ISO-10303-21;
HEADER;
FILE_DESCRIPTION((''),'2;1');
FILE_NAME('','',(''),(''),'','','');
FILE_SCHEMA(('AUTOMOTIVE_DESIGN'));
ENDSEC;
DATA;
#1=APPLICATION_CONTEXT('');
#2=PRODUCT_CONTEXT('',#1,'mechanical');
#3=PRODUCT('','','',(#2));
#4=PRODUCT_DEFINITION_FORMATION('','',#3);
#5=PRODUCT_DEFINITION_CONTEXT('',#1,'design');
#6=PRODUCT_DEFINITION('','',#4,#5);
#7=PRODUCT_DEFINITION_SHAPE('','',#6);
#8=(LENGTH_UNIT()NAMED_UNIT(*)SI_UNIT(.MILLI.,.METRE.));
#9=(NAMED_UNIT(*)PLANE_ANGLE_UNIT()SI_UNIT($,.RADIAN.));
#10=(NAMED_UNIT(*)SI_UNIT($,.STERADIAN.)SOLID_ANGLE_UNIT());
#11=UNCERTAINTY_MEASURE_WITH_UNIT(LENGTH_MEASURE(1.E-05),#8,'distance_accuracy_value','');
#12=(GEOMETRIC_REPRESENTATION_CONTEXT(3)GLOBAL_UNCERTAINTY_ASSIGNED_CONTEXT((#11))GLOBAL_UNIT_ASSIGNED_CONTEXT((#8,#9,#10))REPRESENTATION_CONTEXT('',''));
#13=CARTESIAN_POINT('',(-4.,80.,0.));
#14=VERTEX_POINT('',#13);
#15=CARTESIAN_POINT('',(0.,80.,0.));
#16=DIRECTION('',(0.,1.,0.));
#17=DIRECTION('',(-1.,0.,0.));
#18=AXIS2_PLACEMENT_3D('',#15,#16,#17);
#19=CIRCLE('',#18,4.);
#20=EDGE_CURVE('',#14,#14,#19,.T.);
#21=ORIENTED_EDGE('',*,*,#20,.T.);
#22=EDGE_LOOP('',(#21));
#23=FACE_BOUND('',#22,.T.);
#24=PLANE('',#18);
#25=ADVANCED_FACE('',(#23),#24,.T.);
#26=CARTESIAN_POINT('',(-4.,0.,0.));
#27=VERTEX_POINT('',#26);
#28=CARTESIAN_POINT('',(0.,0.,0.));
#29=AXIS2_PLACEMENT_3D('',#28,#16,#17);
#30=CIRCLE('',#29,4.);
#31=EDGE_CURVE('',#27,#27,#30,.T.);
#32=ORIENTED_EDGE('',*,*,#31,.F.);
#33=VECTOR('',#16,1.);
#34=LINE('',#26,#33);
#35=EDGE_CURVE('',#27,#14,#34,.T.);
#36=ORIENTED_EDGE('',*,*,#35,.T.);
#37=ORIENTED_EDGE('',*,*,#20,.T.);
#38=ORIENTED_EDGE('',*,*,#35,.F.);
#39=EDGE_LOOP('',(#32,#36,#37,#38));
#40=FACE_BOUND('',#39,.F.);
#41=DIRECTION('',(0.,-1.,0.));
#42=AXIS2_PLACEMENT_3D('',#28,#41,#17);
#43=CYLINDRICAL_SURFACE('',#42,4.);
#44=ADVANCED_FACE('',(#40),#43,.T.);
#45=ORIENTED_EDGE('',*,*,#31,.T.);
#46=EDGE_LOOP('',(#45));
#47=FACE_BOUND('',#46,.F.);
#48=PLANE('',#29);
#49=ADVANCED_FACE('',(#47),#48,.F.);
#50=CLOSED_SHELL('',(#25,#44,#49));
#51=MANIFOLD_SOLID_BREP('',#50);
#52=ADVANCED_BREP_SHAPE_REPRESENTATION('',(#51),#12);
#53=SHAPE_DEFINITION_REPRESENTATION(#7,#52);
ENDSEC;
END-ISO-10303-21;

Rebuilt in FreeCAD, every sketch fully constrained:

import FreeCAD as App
import Part
import Sketcher

doc = App.newDocument("Part")
body = doc.addObject("PartDesign::Body", "Body")

# Sketch on XZ plane
sketch1 = doc.addObject("Sketcher::SketchObject", "Sketch")
body.addObject(sketch1)
sketch1.AttachmentSupport = (doc.XZ_Plane, [""])
sketch1.MapMode = "FlatFace"
sketch1.addGeometry(Part.Circle(App.Vector(0, 0, 0), App.Vector(0, 0, 1), 4), False)
sketch1.addConstraint([
    Sketcher.Constraint("Coincident", 0, 3, -1, 1),
    Sketcher.Constraint("Diameter", 0, 8.0),
])
pad1 = doc.addObject("PartDesign::Pad", "Pad")
body.addObject(pad1)
pad1.Profile = sketch1
pad1.Length = 80
pad1.Reversed = True

doc.recompute()
